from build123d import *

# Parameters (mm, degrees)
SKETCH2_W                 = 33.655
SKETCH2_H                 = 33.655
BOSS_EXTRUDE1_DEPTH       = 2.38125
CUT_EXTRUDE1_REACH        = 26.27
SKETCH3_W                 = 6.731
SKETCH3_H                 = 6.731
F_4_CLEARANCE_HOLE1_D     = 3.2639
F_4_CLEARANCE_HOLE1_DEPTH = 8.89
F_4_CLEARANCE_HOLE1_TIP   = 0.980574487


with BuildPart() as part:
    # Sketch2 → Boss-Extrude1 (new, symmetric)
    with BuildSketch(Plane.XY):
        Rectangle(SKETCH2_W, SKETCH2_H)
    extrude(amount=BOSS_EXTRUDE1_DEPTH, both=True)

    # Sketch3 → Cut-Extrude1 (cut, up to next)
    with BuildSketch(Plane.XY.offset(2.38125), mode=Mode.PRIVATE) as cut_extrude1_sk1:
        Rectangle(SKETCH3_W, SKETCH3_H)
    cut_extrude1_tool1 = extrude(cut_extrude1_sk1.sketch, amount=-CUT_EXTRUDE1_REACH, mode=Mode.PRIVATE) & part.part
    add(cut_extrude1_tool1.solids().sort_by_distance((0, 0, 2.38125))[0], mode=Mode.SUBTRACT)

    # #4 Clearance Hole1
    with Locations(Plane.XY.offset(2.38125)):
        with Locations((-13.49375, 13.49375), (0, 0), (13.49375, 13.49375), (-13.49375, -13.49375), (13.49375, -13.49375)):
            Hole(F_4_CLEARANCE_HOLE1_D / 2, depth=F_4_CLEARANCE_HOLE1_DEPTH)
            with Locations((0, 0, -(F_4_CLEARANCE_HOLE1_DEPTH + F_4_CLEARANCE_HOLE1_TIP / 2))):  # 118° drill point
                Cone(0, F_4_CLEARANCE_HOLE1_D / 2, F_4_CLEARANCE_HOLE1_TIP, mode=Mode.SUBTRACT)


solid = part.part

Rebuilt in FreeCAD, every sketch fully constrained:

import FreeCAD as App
import Part
import Sketcher
from FreeCAD import Vector
Q = App.Units.Quantity

doc = App.newDocument("Part")
params = doc.addObject("Spreadsheet::Sheet", "Params")
for row, (alias, value) in enumerate([
    ("sketch1_width", "1.325 in"),
    ("pad1_length", "0.1875 in"),
    ("sketch2_width", "0.265 in"),
    ("hole_diameter", "0.1285 in"),
    ("hole_depth", "0.35 in"),
], start=1):
    params.set(f"A{row}", alias)
    params.set(f"B{row}", "=" + value)
    params.setAlias(f"B{row}", alias)

body = doc.addObject("PartDesign::Body", "Body")

# Sketch on XY plane
sketch1 = doc.addObject("Sketcher::SketchObject", "Sketch")
body.addObject(sketch1)
sketch1.AttachmentSupport = (doc.XY_Plane, [""])
sketch1.MapMode = "FlatFace"
sketch1.addGeometry([
    Part.LineSegment(Vector(-17, 17, 0), Vector(-17, -17, 0)),
    Part.LineSegment(Vector(-17, -17, 0), Vector(17, -17, 0)),
    Part.LineSegment(Vector(17, -17, 0), Vector(17, 17, 0)),
    Part.LineSegment(Vector(17, 17, 0), Vector(-17, 17, 0)),
], False)
sketch1.addConstraint([
    Sketcher.Constraint("Coincident", 0, 2, 1, 1),
    Sketcher.Constraint("Coincident", 1, 2, 2, 1),
    Sketcher.Constraint("Coincident", 2, 2, 3, 1),
    Sketcher.Constraint("Coincident", 3, 2, 0, 1),
    Sketcher.Constraint("Vertical", 0),
    Sketcher.Constraint("Horizontal", 1),
    Sketcher.Constraint("Vertical", 2),
    Sketcher.Constraint("Horizontal", 3),
    Sketcher.Constraint("Symmetric", 0, 2, 2, 2, -1, 1),
    Sketcher.Constraint("Equal", 3, 0),
    Sketcher.Constraint("DistanceX", 1, 1, 1, 2, Q("1.325 in")),
])
sketch1.setExpression("Constraints[10]", "Params.sketch1_width")
pad1 = doc.addObject("PartDesign::Pad", "Pad")
body.addObject(pad1)
pad1.Profile = sketch1
pad1.setExpression("Length", "Params.pad1_length")
pad1.Midplane = True

# Sketch on XY plane
sketch2 = doc.addObject("Sketcher::SketchObject", "Sketch001")
body.addObject(sketch2)
sketch2.AttachmentSupport = (doc.XY_Plane, [""])
sketch2.MapMode = "FlatFace"
sketch2.AttachmentOffset = App.Placement(Vector(0, 0, 0.09375 * 25.4), App.Rotation())
sketch2.addGeometry([
    Part.LineSegment(Vector(-3, 3, 0), Vector(-3, -3, 0)),
    Part.LineSegment(Vector(-3, -3, 0), Vector(3, -3, 0)),
    Part.LineSegment(Vector(3, -3, 0), Vector(3, 3, 0)),
    Part.LineSegment(Vector(3, 3, 0), Vector(-3, 3, 0)),
], False)
sketch2.addConstraint([
    Sketcher.Constraint("Coincident", 0, 2, 1, 1),
    Sketcher.Constraint("Coincident", 1, 2, 2, 1),
    Sketcher.Constraint("Coincident", 2, 2, 3, 1),
    Sketcher.Constraint("Coincident", 3, 2, 0, 1),
    Sketcher.Constraint("Vertical", 0),
    Sketcher.Constraint("Horizontal", 1),
    Sketcher.Constraint("Vertical", 2),
    Sketcher.Constraint("Horizontal", 3),
    Sketcher.Constraint("Symmetric", 0, 2, 2, 2, -1, 1),
    Sketcher.Constraint("Equal", 3, 0),
    Sketcher.Constraint("DistanceX", 1, 1, 1, 2, Q("0.265 in")),
])
sketch2.setExpression("Constraints[10]", "Params.sketch2_width")
pocket1 = doc.addObject("PartDesign::Pocket", "Pocket")
body.addObject(pocket1)
pocket1.Profile = sketch2
pocket1.Type = "UpToFirst"

# Sketch on XY plane
sketch3 = doc.addObject("Sketcher::SketchObject", "Sketch002")
body.addObject(sketch3)
sketch3.AttachmentSupport = (doc.XY_Plane, [""])
sketch3.MapMode = "FlatFace"
sketch3.AttachmentOffset = App.Placement(Vector(0, 0, 0.09375 * 25.4), App.Rotation())
sketch3.addGeometry([
    Part.Circle(Vector(-13.5, 13.5, 0), Vector(0, 0, 1), 1.6),  # 0
    Part.Circle(Vector(0, 0, 0), Vector(0, 0, 1), 1.6),  # 1
    Part.Circle(Vector(13.5, 13.5, 0), Vector(0, 0, 1), 1.6),  # 2
    Part.Circle(Vector(-13.5, -13.5, 0), Vector(0, 0, 1), 1.6),  # 3
    Part.Circle(Vector(13.5, -13.5, 0), Vector(0, 0, 1), 1.6),  # 4
], False)
sketch3.addConstraint([
    Sketcher.Constraint("Coincident", 1, 3, -1, 1),
    Sketcher.Constraint("Equal", 0, 1),
    Sketcher.Constraint("Equal", 1, 2),
    Sketcher.Constraint("Equal", 2, 3),
    Sketcher.Constraint("Equal", 3, 4),
    Sketcher.Constraint("Symmetric", 2, 3, 3, 3, -1, 1),
    Sketcher.Constraint("Symmetric", 0, 3, 4, 3, -1, 1),
    Sketcher.Constraint("Symmetric", 0, 3, 2, 3, -2),
    Sketcher.Constraint("Diameter", 0, Q("0.1285 in")),
    Sketcher.Constraint("DistanceX", 0, 3, -1, 1, Q("0.53125 in")),
    Sketcher.Constraint("DistanceY", -1, 1, 0, 3, Q("0.53125 in")),
])
doc.recompute()
hole = doc.addObject("PartDesign::Hole", "Hole")
body.addObject(hole)
hole.Profile = sketch3
hole.ThreadType = "None"
hole.setExpression("Diameter", "Params.hole_diameter")
hole.DepthType = "Dimension"
hole.setExpression("Depth", "Params.hole_depth")
hole.DrillPoint = "Angled"
hole.DrillPointAngle = 118

doc.recompute()
